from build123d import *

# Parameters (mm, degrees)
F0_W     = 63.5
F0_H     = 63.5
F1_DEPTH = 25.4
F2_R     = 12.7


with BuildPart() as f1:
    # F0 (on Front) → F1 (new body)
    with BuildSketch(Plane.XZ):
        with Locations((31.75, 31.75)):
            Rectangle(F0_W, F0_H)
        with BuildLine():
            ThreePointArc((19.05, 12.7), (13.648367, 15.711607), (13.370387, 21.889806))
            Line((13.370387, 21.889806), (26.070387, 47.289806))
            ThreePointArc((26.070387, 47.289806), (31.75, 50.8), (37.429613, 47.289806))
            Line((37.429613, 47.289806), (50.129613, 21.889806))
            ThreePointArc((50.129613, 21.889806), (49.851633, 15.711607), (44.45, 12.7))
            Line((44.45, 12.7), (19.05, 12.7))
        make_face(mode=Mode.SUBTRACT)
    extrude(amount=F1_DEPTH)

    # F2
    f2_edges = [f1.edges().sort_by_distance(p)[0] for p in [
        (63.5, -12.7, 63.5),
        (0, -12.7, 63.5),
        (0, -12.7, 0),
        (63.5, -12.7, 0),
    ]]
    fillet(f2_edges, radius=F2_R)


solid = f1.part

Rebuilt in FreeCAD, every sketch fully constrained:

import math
import FreeCAD as App
import Part
import Sketcher
Q = App.Units.Quantity


def edges_at(feature, points):
    """Names of the edges that pass closest to the given points."""
    edges = feature.Shape.Edges
    near = lambda p: min(range(len(edges)), key=lambda i: edges[i].distToShape(Part.Vertex(*p))[0])
    return sorted({f"Edge{near(p) + 1}" for p in points})


def add_polygon(sketch, points):
    """Adds a closed chain of lines whose ends are joined by coincident constraints."""
    first, n = sketch.GeometryCount, len(points)
    for a, b in zip(points, points[1:] + points[:1]):
        sketch.addGeometry(Part.LineSegment(App.Vector(*a, 0), App.Vector(*b, 0)), False)
    for i in range(n):
        sketch.addConstraint(Sketcher.Constraint("Coincident", first + i, 2, first + (i + 1) % n, 1))

doc = App.newDocument("Part")
body = doc.addObject("PartDesign::Body", "Body")

# Sketch on XZ plane
sketch1 = doc.addObject("Sketcher::SketchObject", "Sketch")
body.addObject(sketch1)
sketch1.AttachmentSupport = (doc.XZ_Plane, [""])
sketch1.MapMode = "FlatFace"
add_polygon(sketch1, [(0, 64), (0, 0), (64, 0), (64, 64)])  # lines 0-3
sketch1.addGeometry(Part.LineSegment(App.Vector(44, 13, 0), App.Vector(19, 13, 0)), False)  # 4
sketch1.addGeometry(Part.ArcOfCircle(Part.Circle(App.Vector(19, 19, 0), App.Vector(0, 0, 1), 6), math.radians(153), math.radians(270)), False)  # 5
sketch1.addGeometry(Part.LineSegment(App.Vector(13, 22, 0), App.Vector(26, 47, 0)), False)  # 6
sketch1.addGeometry(Part.ArcOfCircle(Part.Circle(App.Vector(32, 44, 0), App.Vector(0, 0, 1), 6), math.radians(27), math.radians(153)), False)  # 7
sketch1.addGeometry(Part.LineSegment(App.Vector(37, 47, 0), App.Vector(50, 22, 0)), False)  # 8
sketch1.addGeometry(Part.ArcOfCircle(Part.Circle(App.Vector(44, 19, 0), App.Vector(0, 0, 1), 6), math.radians(-90), math.radians(27)), False)  # 9
sketch1.addConstraint([
    Sketcher.Constraint("Tangent", 4, 2, 5, 2),
    Sketcher.Constraint("Tangent", 5, 1, 6, 1),
    Sketcher.Constraint("Tangent", 6, 2, 7, 2),
    Sketcher.Constraint("Tangent", 7, 1, 8, 1),
    Sketcher.Constraint("Tangent", 8, 2, 9, 2),
    Sketcher.Constraint("Tangent", 9, 1, 4, 1),
    Sketcher.Constraint("Vertical", 0),
    Sketcher.Constraint("Horizontal", 1),
    Sketcher.Constraint("Vertical", 2),
    Sketcher.Constraint("Horizontal", 3),
    Sketcher.Constraint("Horizontal", 4),
    Sketcher.Constraint("Coincident", 0, 2, -1, 1),
    Sketcher.Constraint("Equal", 5, 7),
    Sketcher.Constraint("Equal", 7, 9),
    Sketcher.Constraint("Horizontal", 6, 2, 7, 1),
    Sketcher.Constraint("Equal", 3, 0),
    Sketcher.Constraint("DistanceX", 4, 2, 4, 1, Q("1 in")),
    Sketcher.Constraint("Radius", 5, Q("0.25 in")),
    Sketcher.Constraint("DistanceX", 1, 1, 1, 2, Q("2.5 in")),
    Sketcher.Constraint("DistanceY", 5, 3, 7, 3, Q("1 in")),
    Sketcher.Constraint("DistanceY", -1, 1, 4, 2, Q("0.5 in")),
    Sketcher.Constraint("DistanceX", -1, 1, 5, 3, Q("0.75 in")),
])
pad1 = doc.addObject("PartDesign::Pad", "Pad")
body.addObject(pad1)
pad1.Profile = sketch1
pad1.Length = Q("1 in")
doc.recompute()

fillet = doc.addObject("PartDesign::Fillet", "Fillet")
body.addObject(fillet)
fillet.Base = (pad1, edges_at(pad1, [
    (63.5, -12.7, 63.5),
    (0, -12.7, 63.5),
    (0, -12.7, 0),
    (63.5, -12.7, 0),
]))
fillet.Radius = Q("0.5 in")

doc.recompute()
